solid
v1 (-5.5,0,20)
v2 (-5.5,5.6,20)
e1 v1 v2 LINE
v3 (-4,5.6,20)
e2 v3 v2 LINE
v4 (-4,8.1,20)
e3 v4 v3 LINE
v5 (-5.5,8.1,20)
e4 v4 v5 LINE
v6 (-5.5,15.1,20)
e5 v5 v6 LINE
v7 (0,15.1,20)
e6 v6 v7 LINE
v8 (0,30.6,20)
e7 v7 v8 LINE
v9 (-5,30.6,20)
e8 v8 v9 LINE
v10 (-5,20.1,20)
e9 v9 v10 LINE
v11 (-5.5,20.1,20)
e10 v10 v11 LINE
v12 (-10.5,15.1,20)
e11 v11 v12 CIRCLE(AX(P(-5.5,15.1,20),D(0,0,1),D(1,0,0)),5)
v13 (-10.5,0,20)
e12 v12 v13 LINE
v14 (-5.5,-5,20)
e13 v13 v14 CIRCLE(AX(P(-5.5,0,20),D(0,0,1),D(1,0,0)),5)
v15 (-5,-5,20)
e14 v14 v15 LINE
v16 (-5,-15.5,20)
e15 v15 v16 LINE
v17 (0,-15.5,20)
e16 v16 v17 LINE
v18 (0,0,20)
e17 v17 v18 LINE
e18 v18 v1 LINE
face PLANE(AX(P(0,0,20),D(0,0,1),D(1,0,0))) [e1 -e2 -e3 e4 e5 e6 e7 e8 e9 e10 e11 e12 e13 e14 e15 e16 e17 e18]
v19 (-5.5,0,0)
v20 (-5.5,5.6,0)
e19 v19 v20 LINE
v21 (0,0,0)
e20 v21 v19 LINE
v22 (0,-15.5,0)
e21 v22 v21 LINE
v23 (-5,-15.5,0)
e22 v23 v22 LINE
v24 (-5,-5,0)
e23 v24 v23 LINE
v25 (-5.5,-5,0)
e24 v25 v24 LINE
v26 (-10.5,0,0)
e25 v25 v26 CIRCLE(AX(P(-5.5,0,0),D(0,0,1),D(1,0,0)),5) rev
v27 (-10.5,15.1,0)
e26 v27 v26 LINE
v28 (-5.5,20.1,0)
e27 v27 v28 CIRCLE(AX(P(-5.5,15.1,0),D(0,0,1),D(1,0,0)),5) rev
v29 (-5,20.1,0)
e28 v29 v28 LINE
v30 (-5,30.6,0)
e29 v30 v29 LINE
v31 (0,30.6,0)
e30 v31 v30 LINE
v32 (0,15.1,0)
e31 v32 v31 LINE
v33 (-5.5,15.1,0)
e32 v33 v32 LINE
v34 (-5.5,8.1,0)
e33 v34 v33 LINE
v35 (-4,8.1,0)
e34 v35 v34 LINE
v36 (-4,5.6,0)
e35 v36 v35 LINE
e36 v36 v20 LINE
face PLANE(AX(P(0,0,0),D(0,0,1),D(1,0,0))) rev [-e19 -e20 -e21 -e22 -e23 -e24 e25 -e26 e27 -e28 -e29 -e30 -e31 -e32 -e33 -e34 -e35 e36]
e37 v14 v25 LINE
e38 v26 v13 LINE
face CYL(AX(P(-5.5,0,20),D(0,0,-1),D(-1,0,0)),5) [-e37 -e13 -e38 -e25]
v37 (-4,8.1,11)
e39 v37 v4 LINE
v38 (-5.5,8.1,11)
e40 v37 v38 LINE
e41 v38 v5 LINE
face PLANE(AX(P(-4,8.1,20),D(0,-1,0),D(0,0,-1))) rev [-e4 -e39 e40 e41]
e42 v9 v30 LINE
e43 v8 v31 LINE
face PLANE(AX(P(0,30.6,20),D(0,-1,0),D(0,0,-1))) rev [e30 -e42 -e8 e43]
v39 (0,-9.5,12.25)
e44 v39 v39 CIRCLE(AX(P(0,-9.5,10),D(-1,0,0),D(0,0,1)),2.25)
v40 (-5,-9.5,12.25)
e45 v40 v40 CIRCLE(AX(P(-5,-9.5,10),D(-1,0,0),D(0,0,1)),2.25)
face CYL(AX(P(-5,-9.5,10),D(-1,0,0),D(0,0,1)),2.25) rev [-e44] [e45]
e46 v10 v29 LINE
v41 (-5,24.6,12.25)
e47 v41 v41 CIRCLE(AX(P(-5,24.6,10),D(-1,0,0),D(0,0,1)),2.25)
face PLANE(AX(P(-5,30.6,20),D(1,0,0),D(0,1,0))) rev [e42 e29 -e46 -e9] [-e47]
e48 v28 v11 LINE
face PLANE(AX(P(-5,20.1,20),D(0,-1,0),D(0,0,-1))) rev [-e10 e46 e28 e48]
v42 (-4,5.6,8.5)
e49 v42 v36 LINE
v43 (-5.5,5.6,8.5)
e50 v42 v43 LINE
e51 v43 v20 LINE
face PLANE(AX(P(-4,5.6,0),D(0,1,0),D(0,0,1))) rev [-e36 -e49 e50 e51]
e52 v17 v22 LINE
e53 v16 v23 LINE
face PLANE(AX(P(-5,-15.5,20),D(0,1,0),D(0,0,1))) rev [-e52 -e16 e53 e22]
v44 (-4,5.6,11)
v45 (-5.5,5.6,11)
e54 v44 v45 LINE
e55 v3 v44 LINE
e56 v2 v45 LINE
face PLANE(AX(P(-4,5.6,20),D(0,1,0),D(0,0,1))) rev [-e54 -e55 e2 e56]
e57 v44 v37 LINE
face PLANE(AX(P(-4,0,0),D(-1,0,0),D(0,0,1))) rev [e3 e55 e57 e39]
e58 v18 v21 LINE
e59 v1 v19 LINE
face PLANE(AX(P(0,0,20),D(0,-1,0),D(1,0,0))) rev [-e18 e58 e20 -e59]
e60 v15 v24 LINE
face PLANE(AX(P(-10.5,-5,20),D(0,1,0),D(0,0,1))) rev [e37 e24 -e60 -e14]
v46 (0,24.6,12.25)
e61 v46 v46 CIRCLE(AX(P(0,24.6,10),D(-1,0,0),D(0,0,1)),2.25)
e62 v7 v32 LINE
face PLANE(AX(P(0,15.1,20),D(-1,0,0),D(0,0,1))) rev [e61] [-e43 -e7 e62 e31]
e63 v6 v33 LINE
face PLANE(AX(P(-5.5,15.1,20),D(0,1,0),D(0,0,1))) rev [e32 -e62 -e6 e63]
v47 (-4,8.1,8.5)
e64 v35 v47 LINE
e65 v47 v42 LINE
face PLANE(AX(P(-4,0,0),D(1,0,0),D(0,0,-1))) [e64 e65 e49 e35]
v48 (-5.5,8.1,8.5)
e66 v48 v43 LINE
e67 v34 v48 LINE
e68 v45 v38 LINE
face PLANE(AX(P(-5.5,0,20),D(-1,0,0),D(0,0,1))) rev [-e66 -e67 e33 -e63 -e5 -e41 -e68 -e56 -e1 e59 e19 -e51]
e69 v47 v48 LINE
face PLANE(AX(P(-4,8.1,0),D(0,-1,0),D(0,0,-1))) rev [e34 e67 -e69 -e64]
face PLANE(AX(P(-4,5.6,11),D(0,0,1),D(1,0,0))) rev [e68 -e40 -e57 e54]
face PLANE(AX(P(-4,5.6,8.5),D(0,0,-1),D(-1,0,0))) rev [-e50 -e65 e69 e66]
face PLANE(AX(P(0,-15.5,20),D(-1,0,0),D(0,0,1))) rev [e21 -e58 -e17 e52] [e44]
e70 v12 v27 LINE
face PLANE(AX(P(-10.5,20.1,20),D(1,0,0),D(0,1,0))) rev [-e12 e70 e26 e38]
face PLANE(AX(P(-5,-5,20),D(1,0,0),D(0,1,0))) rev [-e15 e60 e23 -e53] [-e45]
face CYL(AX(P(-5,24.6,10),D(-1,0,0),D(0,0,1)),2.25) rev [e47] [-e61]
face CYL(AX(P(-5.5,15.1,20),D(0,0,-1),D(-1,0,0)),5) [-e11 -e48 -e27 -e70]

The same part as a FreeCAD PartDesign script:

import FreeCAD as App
import Part
import Sketcher
from FreeCAD import Vector
Q = App.Units.Quantity


def edges_at(feature, points):
    """Names of the edges that pass closest to the given points."""
    edges = feature.Shape.Edges
    near = lambda p: min(range(len(edges)), key=lambda i: edges[i].distToShape(Part.Vertex(*p))[0])
    return sorted({f"Edge{near(p) + 1}" for p in points})


def add_polygon(sketch, points):
    """Adds a closed chain of lines whose ends are joined by coincident constraints."""
    first, n = sketch.GeometryCount, len(points)
    for a, b in zip(points, points[1:] + points[:1]):
        sketch.addGeometry(Part.LineSegment(App.Vector(*a, 0), App.Vector(*b, 0)), False)
    for i in range(n):
        sketch.addConstraint(Sketcher.Constraint("Coincident", first + i, 2, first + (i + 1) % n, 1))

doc = App.newDocument("Part")
params = doc.addObject("Spreadsheet::Sheet", "Params")
for row, (alias, value) in enumerate([
    ("sketch1_width", "5 mm"),
    ("sketch1_width2", "5.5 mm"),
    ("sketch1_height", "10.5 mm"),
    ("sketch1_height2", "25.1 mm"),
    ("sketch1_height3", "15.5 mm"),
    ("pad1_length", "20 mm"),
    ("sketch2_diameter", "4.5 mm"),
    ("hole_diameter", "4.5 mm"),
    ("fillet_radius", "5 mm"),
    ("sketch3_height", "9 mm"),
    ("sketch3_width", "2.5 mm"),
    ("sketch3_height2", "8.5 mm"),
    ("pad2_length", "1.5 mm"),
], start=1):
    params.set(f"A{row}", alias)
    params.set(f"B{row}", "=" + value)
    params.setAlias(f"B{row}", alias)

body = doc.addObject("PartDesign::Body", "Body")

# Sketch on XY plane
sketch1 = body.newObject("Sketcher::SketchObject", "Sketch")
sketch1.AttachmentSupport = (doc.getObject("XY_Plane"), [""])
sketch1.MapMode = "FlatFace"
add_polygon(sketch1, [(0, 31), (-5, 31), (-5, 20), (-10, 20), (-10, -5), (-5, -5), (-5, -16), (0, -16), (0, 0), (-6, 0), (-6, 15), (0, 15)])  # lines 0-11
sketch1.addConstraint([
    Sketcher.Constraint("Horizontal", 0),
    Sketcher.Constraint("Vertical", 1),
    Sketcher.Constraint("Horizontal", 2),
    Sketcher.Constraint("Vertical", 3),
    Sketcher.Constraint("Horizontal", 4),
    Sketcher.Constraint("Vertical", 5),
    Sketcher.Constraint("Horizontal", 6),
    Sketcher.Constraint("Vertical", 7),
    Sketcher.Constraint("Horizontal", 8),
    Sketcher.Constraint("Vertical", 9),
    Sketcher.Constraint("Horizontal", 10),
    Sketcher.Constraint("Vertical", 11),
    Sketcher.Constraint("Coincident", 7, 2, -1, 1),
    Sketcher.Constraint("PointOnObject", 10, 2, -2),
    Sketcher.Constraint("Vertical", 1, 2, 4, 2),
    Sketcher.Constraint("Equal", 4, 8),
    Sketcher.Constraint("Equal", 1, 5),
    Sketcher.Constraint("Equal", 7, 11),
    Sketcher.Constraint("DistanceX", 0, 2, 0, 1, Q("5 mm")),
    Sketcher.Constraint("DistanceX", 2, 2, 2, 1, Q("5.5 mm")),
    Sketcher.Constraint("DistanceY", 1, 2, 1, 1, Q("10.5 mm")),
    Sketcher.Constraint("DistanceY", 3, 2, 3, 1, Q("25.1 mm")),
    Sketcher.Constraint("DistanceY", 7, 1, 7, 2, Q("15.5 mm")),
])
sketch1.setExpression("Constraints[30]", "Params.sketch1_width")
sketch1.setExpression("Constraints[31]", "Params.sketch1_width2")
sketch1.setExpression("Constraints[32]", "Params.sketch1_height")
sketch1.setExpression("Constraints[33]", "Params.sketch1_height2")
sketch1.setExpression("Constraints[34]", "Params.sketch1_height3")
pad1 = body.newObject("PartDesign::Pad", "Pad")
pad1.Profile = sketch1
pad1.setExpression("Length", "Params.pad1_length")

# Sketch on YZ plane
sketch2 = body.newObject("Sketcher::SketchObject", "Sketch001")
sketch2.AttachmentSupport = (doc.getObject("YZ_Plane"), [""])
sketch2.MapMode = "FlatFace"
sketch2.AttachmentOffset = App.Placement(Vector(0, 0, -5), App.Rotation())
sketch2.addGeometry([
    Part.Circle(Vector(24.6, 10, 0), Vector(0, 0, 1), 2.2),
    Part.Circle(Vector(-9.5, 10, 0), Vector(0, 0, 1), 2.2),
], False)
sketch2.addConstraint([
    Sketcher.Constraint("Equal", 0, 1),
    Sketcher.Constraint("Horizontal", 0, 3, 1, 3),
    Sketcher.Constraint("Diameter", 0, Q("4.5 mm")),
    Sketcher.Constraint("DistanceY", -1, 1, 0, 3, Q("10 mm")),
    Sketcher.Constraint("DistanceX", -1, 1, 0, 3, Q("24.6 mm")),
    Sketcher.Constraint("DistanceX", 1, 3, -1, 1, Q("9.5 mm")),
])
sketch2.setExpression("Constraints[2]", "Params.sketch2_diameter")
doc.recompute()
hole = body.newObject("PartDesign::Hole", "Hole")
hole.Profile = sketch2
hole.ThreadType = "None"
hole.setExpression("Diameter", "Params.hole_diameter")
hole.DepthType = "ThroughAll"
hole.Reversed = True
doc.recompute()

fillet = body.newObject("PartDesign::Fillet", "Fillet")
fillet.Base = (hole, edges_at(hole, [(-10.5, -5, 10), (-10.5, 20.1, 10)]))
fillet.setExpression("Radius", "Params.fillet_radius")

# Sketch on YZ plane
sketch3 = body.newObject("Sketcher::SketchObject", "Sketch002")
sketch3.AttachmentSupport = (doc.getObject("YZ_Plane"), [""])
sketch3.MapMode = "FlatFace"
sketch3.AttachmentOffset = App.Placement(Vector(0, 0, -5.5), App.Rotation())
add_polygon(sketch3, [(8.1, 20), (5.6, 20), (5.6, 11), (8.1, 11)])  # lines 0-3
add_polygon(sketch3, [(8.1, 8.5), (5.6, 8.5), (5.6, 0), (8.1, 0)])  # lines 4-7
sketch3.addConstraint([
    Sketcher.Constraint("Horizontal", 0),
    Sketcher.Constraint("Vertical", 1),
    Sketcher.Constraint("Horizontal", 2),
    Sketcher.Constraint("Vertical", 3),
    Sketcher.Constraint("Horizontal", 4),
    Sketcher.Constraint("Vertical", 5),
    Sketcher.Constraint("Horizontal", 6),
    Sketcher.Constraint("Vertical", 7),
    Sketcher.Constraint("PointOnObject", 5, 2, -1),
    Sketcher.Constraint("Vertical", 1, 2, 4, 2),
    Sketcher.Constraint("Vertical", 3, 2, 6, 2),
    Sketcher.Constraint("DistanceY", 1, 2, 1, 1, Q("9 mm")),
    Sketcher.Constraint("DistanceX", 0, 2, 0, 1, Q("2.5 mm")),
    Sketcher.Constraint("DistanceY", 5, 2, 5, 1, Q("8.5 mm")),
    Sketcher.Constraint("DistanceY", -1, 1, 0, 2, Q("20 mm")),
    Sketcher.Constraint("DistanceX", -1, 1, 0, 2, Q("5.6 mm")),
])
sketch3.setExpression("Constraints[19]", "Params.sketch3_height")
sketch3.setExpression("Constraints[20]", "Params.sketch3_width")
sketch3.setExpression("Constraints[21]", "Params.sketch3_height2")
pad2 = body.newObject("PartDesign::Pad", "Pad001")
pad2.Profile = sketch3
pad2.setExpression("Length", "Params.pad2_length")

doc.recompute()
